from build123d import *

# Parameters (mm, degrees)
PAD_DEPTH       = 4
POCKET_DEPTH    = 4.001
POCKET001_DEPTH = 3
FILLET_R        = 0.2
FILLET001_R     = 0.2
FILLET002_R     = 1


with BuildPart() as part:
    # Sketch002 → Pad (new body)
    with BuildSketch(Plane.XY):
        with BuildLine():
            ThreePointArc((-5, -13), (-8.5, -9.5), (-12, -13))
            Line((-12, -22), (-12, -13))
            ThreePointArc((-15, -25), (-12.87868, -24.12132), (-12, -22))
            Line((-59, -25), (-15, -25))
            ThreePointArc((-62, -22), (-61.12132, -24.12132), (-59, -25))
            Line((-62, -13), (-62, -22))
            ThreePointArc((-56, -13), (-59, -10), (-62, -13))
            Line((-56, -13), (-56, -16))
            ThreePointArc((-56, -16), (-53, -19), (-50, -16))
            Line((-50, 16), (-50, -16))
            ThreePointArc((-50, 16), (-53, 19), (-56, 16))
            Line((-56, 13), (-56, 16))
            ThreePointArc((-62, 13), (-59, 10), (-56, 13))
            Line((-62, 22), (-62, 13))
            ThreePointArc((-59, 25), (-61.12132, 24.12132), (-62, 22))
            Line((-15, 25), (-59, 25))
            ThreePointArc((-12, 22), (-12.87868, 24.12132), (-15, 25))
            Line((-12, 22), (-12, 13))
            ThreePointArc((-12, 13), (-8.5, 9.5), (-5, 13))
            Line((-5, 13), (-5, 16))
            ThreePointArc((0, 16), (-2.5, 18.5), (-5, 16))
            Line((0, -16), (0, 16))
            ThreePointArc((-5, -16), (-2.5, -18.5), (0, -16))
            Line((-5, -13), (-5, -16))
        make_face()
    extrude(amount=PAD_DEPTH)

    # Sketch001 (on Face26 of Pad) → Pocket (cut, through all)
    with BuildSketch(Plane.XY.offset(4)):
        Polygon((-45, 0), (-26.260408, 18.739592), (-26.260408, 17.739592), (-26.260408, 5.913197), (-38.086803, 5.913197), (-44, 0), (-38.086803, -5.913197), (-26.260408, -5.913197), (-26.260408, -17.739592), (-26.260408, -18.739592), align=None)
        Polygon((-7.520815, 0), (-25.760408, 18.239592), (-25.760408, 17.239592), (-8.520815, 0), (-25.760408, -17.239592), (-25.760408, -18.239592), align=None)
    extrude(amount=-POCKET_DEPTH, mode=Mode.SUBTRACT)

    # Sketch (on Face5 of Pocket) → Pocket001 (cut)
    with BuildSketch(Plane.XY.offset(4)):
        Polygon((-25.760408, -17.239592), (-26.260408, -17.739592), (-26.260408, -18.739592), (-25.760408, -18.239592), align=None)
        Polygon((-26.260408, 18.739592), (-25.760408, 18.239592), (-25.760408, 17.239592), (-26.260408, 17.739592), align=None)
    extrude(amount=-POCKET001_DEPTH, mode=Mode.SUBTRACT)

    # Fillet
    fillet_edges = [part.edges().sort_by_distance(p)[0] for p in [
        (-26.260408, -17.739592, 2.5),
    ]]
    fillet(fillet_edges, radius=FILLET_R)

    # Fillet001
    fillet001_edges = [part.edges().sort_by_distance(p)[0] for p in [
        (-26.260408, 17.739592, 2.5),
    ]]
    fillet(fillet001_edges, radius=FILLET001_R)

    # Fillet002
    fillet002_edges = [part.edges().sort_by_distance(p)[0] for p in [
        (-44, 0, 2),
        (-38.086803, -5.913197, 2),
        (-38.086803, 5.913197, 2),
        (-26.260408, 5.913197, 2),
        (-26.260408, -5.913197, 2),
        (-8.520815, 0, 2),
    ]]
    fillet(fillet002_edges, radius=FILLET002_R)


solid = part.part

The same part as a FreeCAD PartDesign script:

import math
import FreeCAD as App
import Part
import Sketcher

V = App.Vector
Q = App.Units.Quantity


def edges_at(feature, points):
    """Names of the edges that pass closest to the given points."""
    edges = feature.Shape.Edges
    near = lambda p: min(range(len(edges)), key=lambda i: edges[i].distToShape(Part.Vertex(*p))[0])
    return sorted({f"Edge{near(p) + 1}" for p in points})


def add_polygon(sketch, points):
    """Adds a closed chain of lines whose ends are joined by coincident constraints."""
    first, n = sketch.GeometryCount, len(points)
    for a, b in zip(points, points[1:] + points[:1]):
        sketch.addGeometry(Part.LineSegment(App.Vector(*a, 0), App.Vector(*b, 0)), False)
    for i in range(n):
        sketch.addConstraint(Sketcher.Constraint("Coincident", first + i, 2, first + (i + 1) % n, 1))

doc = App.newDocument("Part")
params = doc.addObject("Spreadsheet::Sheet", "Params")
for row, (alias, value) in enumerate([
    ("sketch1_radius", "3.000001 mm"),
    ("sketch1_radius2", "3.5 mm"),
    ("sketch1_radius3", "2.5 mm"),
    ("sketch1_width", "44 mm"),
    ("sketch1_height", "3 mm"),
    ("pad1_length", "4 mm"),
    ("sketch2_height", "1 mm"),
    ("sketch3_height", "1 mm"),
    ("pocket2_length", "3 mm"),
    ("fillet_radius", "0.2 mm"),
    ("fillet2_radius", "0.2 mm"),
    ("fillet3_radius", "1 mm"),
], start=1):
    params.set(f"A{row}", alias)
    params.set(f"B{row}", "=" + value)
    params.setAlias(f"B{row}", alias)

body = doc.addObject("PartDesign::Body", "Body")

# Sketch on XY plane
sketch1 = body.newObject("Sketcher::SketchObject", "Sketch")
sketch1.AttachmentSupport = (doc.getObject("XY_Plane"), [""])
sketch1.MapMode = "FlatFace"
sketch1.addGeometry([
    Part.ArcOfCircle(Part.Circle(V(-8.5, -13, 0), V(0, 0, 1), 3.5), math.radians(0), math.radians(180)),  # 0
    Part.LineSegment(V(-5, -13, 0), V(-5, -16, 0)),  # 1
    Part.ArcOfCircle(Part.Circle(V(-2.5, -16, 0), V(0, 0, 1), 2.5), math.radians(180), math.radians(360)),  # 2
    Part.LineSegment(V(0, -16, 0), V(0, 16, 0)),  # 3
    Part.ArcOfCircle(Part.Circle(V(-2.5, 16, 0), V(0, 0, 1), 2.5), math.radians(0), math.radians(180)),  # 4
    Part.LineSegment(V(-5, 16, 0), V(-5, 13, 0)),  # 5
    Part.ArcOfCircle(Part.Circle(V(-8.5, 13, 0), V(0, 0, 1), 3.5), math.radians(180), math.radians(360)),  # 6
    Part.LineSegment(V(-12, 13, 0), V(-12, 22, 0)),  # 7
    Part.ArcOfCircle(Part.Circle(V(-15.000001, 21.999999, 0), V(0, 0, 1), 3.000001), math.radians(0.000022), math.radians(89.999978)),  # 8
    Part.LineSegment(V(-15, 25, 0), V(-59, 25, 0)),  # 9
    Part.ArcOfCircle(Part.Circle(V(-58.999999, 21.999999, 0), V(0, 0, 1), 3.000001), math.radians(90.000022), math.radians(179.999978)),  # 10
    Part.LineSegment(V(-62, 22, 0), V(-62, 13, 0)),  # 11
    Part.ArcOfCircle(Part.Circle(V(-59, 13, 0), V(0, 0, 1), 3), math.radians(180), math.radians(360)),  # 12
    Part.LineSegment(V(-56, 13, 0), V(-56, 16, 0)),  # 13
    Part.ArcOfCircle(Part.Circle(V(-53, 16, 0), V(0, 0, 1), 3), math.radians(0), math.radians(180)),  # 14
    Part.LineSegment(V(-50, 16, 0), V(-50, -16, 0)),  # 15
    Part.ArcOfCircle(Part.Circle(V(-53, -16, 0), V(0, 0, 1), 3), math.radians(180), math.radians(360)),  # 16
    Part.LineSegment(V(-56, -16, 0), V(-56, -13, 0)),  # 17
    Part.ArcOfCircle(Part.Circle(V(-59, -13, 0), V(0, 0, 1), 3), math.radians(0), math.radians(180)),  # 18
    Part.LineSegment(V(-62, -13, 0), V(-62, -22, 0)),  # 19
    Part.ArcOfCircle(Part.Circle(V(-58.999999, -21.999999, 0), V(0, 0, 1), 3.000001), math.radians(-179.999978), math.radians(-90.000022)),  # 20
    Part.LineSegment(V(-59, -25, 0), V(-15, -25, 0)),  # 21
    Part.ArcOfCircle(Part.Circle(V(-15.000001, -21.999999, 0), V(0, 0, 1), 3.000001), math.radians(-89.999978), math.radians(-0.000022)),  # 22
    Part.LineSegment(V(-12, -22, 0), V(-12, -13, 0)),  # 23
], False)
sketch1.addConstraint([
    Sketcher.Constraint("Tangent", 0, 1, 1, 1),
    Sketcher.Constraint("Tangent", 1, 2, 2, 1),
    Sketcher.Constraint("Tangent", 2, 2, 3, 1),
    Sketcher.Constraint("Tangent", 3, 2, 4, 1),
    Sketcher.Constraint("Tangent", 4, 2, 5, 1),
    Sketcher.Constraint("Tangent", 5, 2, 6, 2),
    Sketcher.Constraint("Tangent", 6, 1, 7, 1),
    Sketcher.Constraint("Tangent", 7, 2, 8, 1),
    Sketcher.Constraint("Tangent", 8, 2, 9, 1),
    Sketcher.Constraint("Tangent", 9, 2, 10, 1),
    Sketcher.Constraint("Tangent", 10, 2, 11, 1),
    Sketcher.Constraint("Tangent", 11, 2, 12, 1),
    Sketcher.Constraint("Tangent", 12, 2, 13, 1),
    Sketcher.Constraint("Tangent", 13, 2, 14, 2),
    Sketcher.Constraint("Tangent", 14, 1, 15, 1),
    Sketcher.Constraint("Tangent", 15, 2, 16, 2),
    Sketcher.Constraint("Tangent", 16, 1, 17, 1),
    Sketcher.Constraint("Tangent", 17, 2, 18, 1),
    Sketcher.Constraint("Tangent", 18, 2, 19, 1),
    Sketcher.Constraint("Tangent", 19, 2, 20, 1),
    Sketcher.Constraint("Tangent", 20, 2, 21, 1),
    Sketcher.Constraint("Tangent", 21, 2, 22, 1),
    Sketcher.Constraint("Tangent", 22, 2, 23, 1),
    Sketcher.Constraint("Tangent", 23, 2, 0, 2),
    Sketcher.Constraint("Vertical", 1),
    Sketcher.Constraint("Vertical", 3),
    Sketcher.Constraint("Vertical", 5),
    Sketcher.Constraint("Vertical", 7),
    Sketcher.Constraint("Horizontal", 9),
    Sketcher.Constraint("Vertical", 11),
    Sketcher.Constraint("Vertical", 13),
    Sketcher.Constraint("Vertical", 15),
    Sketcher.Constraint("Vertical", 17),
    Sketcher.Constraint("Vertical", 19),
    Sketcher.Constraint("Horizontal", 21),
    Sketcher.Constraint("Vertical", 23),
    Sketcher.Constraint("Equal", 2, 4),
    Sketcher.Constraint("Equal", 0, 6),
    Sketcher.Constraint("Equal", 8, 10),
    Sketcher.Constraint("Equal", 10, 12),
    Sketcher.Constraint("Equal", 12, 14),
    Sketcher.Constraint("Equal", 14, 16),
    Sketcher.Constraint("Equal", 16, 18),
    Sketcher.Constraint("Equal", 18, 20),
    Sketcher.Constraint("Equal", 20, 22),
    Sketcher.Constraint("Symmetric", 2, 2, 3, 2, -1, 1),
    Sketcher.Constraint("Horizontal", 6, 3, 12, 3),
    Sketcher.Constraint("Horizontal", 4, 3, 14, 3),
    Sketcher.Constraint("Horizontal", 2, 3, 16, 3),
    Sketcher.Constraint("Horizontal", 0, 3, 18, 3),
    Sketcher.Constraint("Equal", 1, 5),
    Sketcher.Constraint("Equal", 11, 19),
    Sketcher.Constraint("Radius", 8, Q("3.000001 mm")),
    Sketcher.Constraint("Radius", 0, Q("3.5 mm")),
    Sketcher.Constraint("Radius", 2, Q("2.5 mm")),
    Sketcher.Constraint("DistanceX", 9, 2, 9, 1, Q("44 mm")),
    Sketcher.Constraint("DistanceY", 1, 2, 1, 1, Q("3 mm")),
    Sketcher.Constraint("DistanceY", 3, 1, 3, 2, Q("32 mm")),
    Sketcher.Constraint("DistanceY", 7, 1, 7, 2, Q("9 mm")),
])
sketch1.setExpression("Constraints[52]", "Params.sketch1_radius")
sketch1.setExpression("Constraints[53]", "Params.sketch1_radius2")
sketch1.setExpression("Constraints[54]", "Params.sketch1_radius3")
sketch1.setExpression("Constraints[55]", "Params.sketch1_width")
sketch1.setExpression("Constraints[56]", "Params.sketch1_height")
pad1 = body.newObject("PartDesign::Pad", "Pad")
pad1.Profile = sketch1
pad1.setExpression("Length", "Params.pad1_length")

# Sketch on XY plane
sketch2 = body.newObject("Sketcher::SketchObject", "Sketch001")
sketch2.AttachmentSupport = (doc.getObject("XY_Plane"), [""])
sketch2.MapMode = "FlatFace"
sketch2.AttachmentOffset = App.Placement(V(0, 0, 4), App.Rotation())
add_polygon(sketch2, [(-26.260408, 18.739592), (-45, 0), (-26.260408, -18.739592), (-26.260408, -5.913197), (-38.086803, -5.913197), (-44, 0), (-38.086803, 5.913197), (-26.260408, 5.913197)])  # lines 0-7
add_polygon(sketch2, [(-7.520815, 0), (-25.760408, 18.239592), (-25.760408, 17.239592), (-8.520815, 0), (-25.760408, -17.239592), (-25.760408, -18.239592)])  # lines 8-13
sketch2.addConstraint([
    Sketcher.Constraint("Vertical", 2),
    Sketcher.Constraint("Horizontal", 3),
    Sketcher.Constraint("Horizontal", 6),
    Sketcher.Constraint("Vertical", 7),
    Sketcher.Constraint("Vertical", 9),
    Sketcher.Constraint("Vertical", 12),
    Sketcher.Constraint("Symmetric", 3, 2, 5, 2, -1),
    Sketcher.Constraint("Symmetric", 1, 2, 7, 2, -1),
    Sketcher.Constraint("Symmetric", 9, 2, 11, 2, -1),
    Sketcher.Constraint("PointOnObject", 0, 2, -1),
    Sketcher.Constraint("PointOnObject", 4, 2, -1),
    Sketcher.Constraint("PointOnObject", 10, 2, -1),
    Sketcher.Constraint("PointOnObject", 13, 2, -1),
    Sketcher.Constraint("Perpendicular", 0, 1),
    Sketcher.Constraint("Parallel", 1, 4),
    Sketcher.Constraint("Perpendicular", 5, 8),
    Sketcher.Constraint("Parallel", 8, 10),
    Sketcher.Constraint("Parallel", 11, 13),
    Sketcher.Constraint("DistanceY", 9, 2, 9, 1, Q("1 mm")),
    Sketcher.Constraint("DistanceX", 0, 2, -1, 1, Q("45 mm")),
    Sketcher.Constraint("DistanceX", 4, 2, -1, 1, Q("44 mm")),
    Sketcher.Constraint("DistanceX", 7, 2, 8, 2, Q("0.5 mm")),
    Sketcher.Constraint("DistanceY", 8, 2, 7, 2, Q("0.5 mm")),
    Sketcher.Constraint("Distance", 8, Q("25.794679 mm")),
    Sketcher.Constraint("DistanceX", 3, 2, 3, 1, Q("11.826395 mm")),
])
sketch2.setExpression("Constraints[32]", "Params.sketch2_height")
pocket1 = body.newObject("PartDesign::Pocket", "Pocket")
pocket1.Profile = sketch2
pocket1.Type = "ThroughAll"

# Sketch on XY plane
sketch3 = body.newObject("Sketcher::SketchObject", "Sketch002")
sketch3.AttachmentSupport = (doc.getObject("XY_Plane"), [""])
sketch3.MapMode = "FlatFace"
sketch3.AttachmentOffset = App.Placement(V(0, 0, 4), App.Rotation())
add_polygon(sketch3, [(-25.760408, -17.239592), (-26.260408, -17.739592), (-26.260408, -18.739592), (-25.760408, -18.239592)])  # lines 0-3
add_polygon(sketch3, [(-25.760408, 18.239592), (-26.260408, 18.739592), (-26.260408, 17.739592), (-25.760408, 17.239592)])  # lines 4-7
sketch3.addConstraint([
    Sketcher.Constraint("Vertical", 1),
    Sketcher.Constraint("Vertical", 3),
    Sketcher.Constraint("Vertical", 5),
    Sketcher.Constraint("Vertical", 7),
    Sketcher.Constraint("Symmetric", 1, 2, 4, 2, -1),
    Sketcher.Constraint("Symmetric", 3, 2, 6, 2, -1),
    Sketcher.Constraint("Parallel", 0, 2),
    Sketcher.Constraint("Perpendicular", 2, 4),
    Sketcher.Constraint("Parallel", 4, 6),
    Sketcher.Constraint("Equal", 3, 5),
    Sketcher.Constraint("DistanceY", 1, 2, 1, 1, Q("1 mm")),
    Sketcher.Constraint("DistanceX", 0, 2, 2, 2, Q("0.5 mm")),
    Sketcher.Constraint("DistanceX", 0, 2, -1, 1, Q("26.260408 mm")),
    Sketcher.Constraint("DistanceY", 0, 2, -1, 1, Q("17.739592 mm")),
])
sketch3.setExpression("Constraints[18]", "Params.sketch3_height")
pocket2 = body.newObject("PartDesign::Pocket", "Pocket001")
pocket2.Profile = sketch3
pocket2.setExpression("Length", "Params.pocket2_length")
doc.recompute()

fillet = body.newObject("PartDesign::Fillet", "Fillet")
fillet.Base = (pocket2, edges_at(pocket2, [(-26.26, -17.74, 2.5)]))
fillet.setExpression("Radius", "Params.fillet_radius")
doc.recompute()

fillet2 = body.newObject("PartDesign::Fillet", "Fillet001")
fillet2.Base = (fillet, edges_at(fillet, [(-26.26, 17.74, 2.5)]))
fillet2.setExpression("Radius", "Params.fillet2_radius")
doc.recompute()

fillet3 = body.newObject("PartDesign::Fillet", "Fillet002")
fillet3.Base = (fillet2, edges_at(fillet2, [
    (-44, 0, 2),
    (-38.087, -5.913, 2),
    (-38.087, 5.913, 2),
    (-26.26, 5.913, 2),
    (-26.26, -5.913, 2),
    (-8.521, 0, 2),
]))
fillet3.setExpression("Radius", "Params.fillet3_radius")

doc.recompute()
